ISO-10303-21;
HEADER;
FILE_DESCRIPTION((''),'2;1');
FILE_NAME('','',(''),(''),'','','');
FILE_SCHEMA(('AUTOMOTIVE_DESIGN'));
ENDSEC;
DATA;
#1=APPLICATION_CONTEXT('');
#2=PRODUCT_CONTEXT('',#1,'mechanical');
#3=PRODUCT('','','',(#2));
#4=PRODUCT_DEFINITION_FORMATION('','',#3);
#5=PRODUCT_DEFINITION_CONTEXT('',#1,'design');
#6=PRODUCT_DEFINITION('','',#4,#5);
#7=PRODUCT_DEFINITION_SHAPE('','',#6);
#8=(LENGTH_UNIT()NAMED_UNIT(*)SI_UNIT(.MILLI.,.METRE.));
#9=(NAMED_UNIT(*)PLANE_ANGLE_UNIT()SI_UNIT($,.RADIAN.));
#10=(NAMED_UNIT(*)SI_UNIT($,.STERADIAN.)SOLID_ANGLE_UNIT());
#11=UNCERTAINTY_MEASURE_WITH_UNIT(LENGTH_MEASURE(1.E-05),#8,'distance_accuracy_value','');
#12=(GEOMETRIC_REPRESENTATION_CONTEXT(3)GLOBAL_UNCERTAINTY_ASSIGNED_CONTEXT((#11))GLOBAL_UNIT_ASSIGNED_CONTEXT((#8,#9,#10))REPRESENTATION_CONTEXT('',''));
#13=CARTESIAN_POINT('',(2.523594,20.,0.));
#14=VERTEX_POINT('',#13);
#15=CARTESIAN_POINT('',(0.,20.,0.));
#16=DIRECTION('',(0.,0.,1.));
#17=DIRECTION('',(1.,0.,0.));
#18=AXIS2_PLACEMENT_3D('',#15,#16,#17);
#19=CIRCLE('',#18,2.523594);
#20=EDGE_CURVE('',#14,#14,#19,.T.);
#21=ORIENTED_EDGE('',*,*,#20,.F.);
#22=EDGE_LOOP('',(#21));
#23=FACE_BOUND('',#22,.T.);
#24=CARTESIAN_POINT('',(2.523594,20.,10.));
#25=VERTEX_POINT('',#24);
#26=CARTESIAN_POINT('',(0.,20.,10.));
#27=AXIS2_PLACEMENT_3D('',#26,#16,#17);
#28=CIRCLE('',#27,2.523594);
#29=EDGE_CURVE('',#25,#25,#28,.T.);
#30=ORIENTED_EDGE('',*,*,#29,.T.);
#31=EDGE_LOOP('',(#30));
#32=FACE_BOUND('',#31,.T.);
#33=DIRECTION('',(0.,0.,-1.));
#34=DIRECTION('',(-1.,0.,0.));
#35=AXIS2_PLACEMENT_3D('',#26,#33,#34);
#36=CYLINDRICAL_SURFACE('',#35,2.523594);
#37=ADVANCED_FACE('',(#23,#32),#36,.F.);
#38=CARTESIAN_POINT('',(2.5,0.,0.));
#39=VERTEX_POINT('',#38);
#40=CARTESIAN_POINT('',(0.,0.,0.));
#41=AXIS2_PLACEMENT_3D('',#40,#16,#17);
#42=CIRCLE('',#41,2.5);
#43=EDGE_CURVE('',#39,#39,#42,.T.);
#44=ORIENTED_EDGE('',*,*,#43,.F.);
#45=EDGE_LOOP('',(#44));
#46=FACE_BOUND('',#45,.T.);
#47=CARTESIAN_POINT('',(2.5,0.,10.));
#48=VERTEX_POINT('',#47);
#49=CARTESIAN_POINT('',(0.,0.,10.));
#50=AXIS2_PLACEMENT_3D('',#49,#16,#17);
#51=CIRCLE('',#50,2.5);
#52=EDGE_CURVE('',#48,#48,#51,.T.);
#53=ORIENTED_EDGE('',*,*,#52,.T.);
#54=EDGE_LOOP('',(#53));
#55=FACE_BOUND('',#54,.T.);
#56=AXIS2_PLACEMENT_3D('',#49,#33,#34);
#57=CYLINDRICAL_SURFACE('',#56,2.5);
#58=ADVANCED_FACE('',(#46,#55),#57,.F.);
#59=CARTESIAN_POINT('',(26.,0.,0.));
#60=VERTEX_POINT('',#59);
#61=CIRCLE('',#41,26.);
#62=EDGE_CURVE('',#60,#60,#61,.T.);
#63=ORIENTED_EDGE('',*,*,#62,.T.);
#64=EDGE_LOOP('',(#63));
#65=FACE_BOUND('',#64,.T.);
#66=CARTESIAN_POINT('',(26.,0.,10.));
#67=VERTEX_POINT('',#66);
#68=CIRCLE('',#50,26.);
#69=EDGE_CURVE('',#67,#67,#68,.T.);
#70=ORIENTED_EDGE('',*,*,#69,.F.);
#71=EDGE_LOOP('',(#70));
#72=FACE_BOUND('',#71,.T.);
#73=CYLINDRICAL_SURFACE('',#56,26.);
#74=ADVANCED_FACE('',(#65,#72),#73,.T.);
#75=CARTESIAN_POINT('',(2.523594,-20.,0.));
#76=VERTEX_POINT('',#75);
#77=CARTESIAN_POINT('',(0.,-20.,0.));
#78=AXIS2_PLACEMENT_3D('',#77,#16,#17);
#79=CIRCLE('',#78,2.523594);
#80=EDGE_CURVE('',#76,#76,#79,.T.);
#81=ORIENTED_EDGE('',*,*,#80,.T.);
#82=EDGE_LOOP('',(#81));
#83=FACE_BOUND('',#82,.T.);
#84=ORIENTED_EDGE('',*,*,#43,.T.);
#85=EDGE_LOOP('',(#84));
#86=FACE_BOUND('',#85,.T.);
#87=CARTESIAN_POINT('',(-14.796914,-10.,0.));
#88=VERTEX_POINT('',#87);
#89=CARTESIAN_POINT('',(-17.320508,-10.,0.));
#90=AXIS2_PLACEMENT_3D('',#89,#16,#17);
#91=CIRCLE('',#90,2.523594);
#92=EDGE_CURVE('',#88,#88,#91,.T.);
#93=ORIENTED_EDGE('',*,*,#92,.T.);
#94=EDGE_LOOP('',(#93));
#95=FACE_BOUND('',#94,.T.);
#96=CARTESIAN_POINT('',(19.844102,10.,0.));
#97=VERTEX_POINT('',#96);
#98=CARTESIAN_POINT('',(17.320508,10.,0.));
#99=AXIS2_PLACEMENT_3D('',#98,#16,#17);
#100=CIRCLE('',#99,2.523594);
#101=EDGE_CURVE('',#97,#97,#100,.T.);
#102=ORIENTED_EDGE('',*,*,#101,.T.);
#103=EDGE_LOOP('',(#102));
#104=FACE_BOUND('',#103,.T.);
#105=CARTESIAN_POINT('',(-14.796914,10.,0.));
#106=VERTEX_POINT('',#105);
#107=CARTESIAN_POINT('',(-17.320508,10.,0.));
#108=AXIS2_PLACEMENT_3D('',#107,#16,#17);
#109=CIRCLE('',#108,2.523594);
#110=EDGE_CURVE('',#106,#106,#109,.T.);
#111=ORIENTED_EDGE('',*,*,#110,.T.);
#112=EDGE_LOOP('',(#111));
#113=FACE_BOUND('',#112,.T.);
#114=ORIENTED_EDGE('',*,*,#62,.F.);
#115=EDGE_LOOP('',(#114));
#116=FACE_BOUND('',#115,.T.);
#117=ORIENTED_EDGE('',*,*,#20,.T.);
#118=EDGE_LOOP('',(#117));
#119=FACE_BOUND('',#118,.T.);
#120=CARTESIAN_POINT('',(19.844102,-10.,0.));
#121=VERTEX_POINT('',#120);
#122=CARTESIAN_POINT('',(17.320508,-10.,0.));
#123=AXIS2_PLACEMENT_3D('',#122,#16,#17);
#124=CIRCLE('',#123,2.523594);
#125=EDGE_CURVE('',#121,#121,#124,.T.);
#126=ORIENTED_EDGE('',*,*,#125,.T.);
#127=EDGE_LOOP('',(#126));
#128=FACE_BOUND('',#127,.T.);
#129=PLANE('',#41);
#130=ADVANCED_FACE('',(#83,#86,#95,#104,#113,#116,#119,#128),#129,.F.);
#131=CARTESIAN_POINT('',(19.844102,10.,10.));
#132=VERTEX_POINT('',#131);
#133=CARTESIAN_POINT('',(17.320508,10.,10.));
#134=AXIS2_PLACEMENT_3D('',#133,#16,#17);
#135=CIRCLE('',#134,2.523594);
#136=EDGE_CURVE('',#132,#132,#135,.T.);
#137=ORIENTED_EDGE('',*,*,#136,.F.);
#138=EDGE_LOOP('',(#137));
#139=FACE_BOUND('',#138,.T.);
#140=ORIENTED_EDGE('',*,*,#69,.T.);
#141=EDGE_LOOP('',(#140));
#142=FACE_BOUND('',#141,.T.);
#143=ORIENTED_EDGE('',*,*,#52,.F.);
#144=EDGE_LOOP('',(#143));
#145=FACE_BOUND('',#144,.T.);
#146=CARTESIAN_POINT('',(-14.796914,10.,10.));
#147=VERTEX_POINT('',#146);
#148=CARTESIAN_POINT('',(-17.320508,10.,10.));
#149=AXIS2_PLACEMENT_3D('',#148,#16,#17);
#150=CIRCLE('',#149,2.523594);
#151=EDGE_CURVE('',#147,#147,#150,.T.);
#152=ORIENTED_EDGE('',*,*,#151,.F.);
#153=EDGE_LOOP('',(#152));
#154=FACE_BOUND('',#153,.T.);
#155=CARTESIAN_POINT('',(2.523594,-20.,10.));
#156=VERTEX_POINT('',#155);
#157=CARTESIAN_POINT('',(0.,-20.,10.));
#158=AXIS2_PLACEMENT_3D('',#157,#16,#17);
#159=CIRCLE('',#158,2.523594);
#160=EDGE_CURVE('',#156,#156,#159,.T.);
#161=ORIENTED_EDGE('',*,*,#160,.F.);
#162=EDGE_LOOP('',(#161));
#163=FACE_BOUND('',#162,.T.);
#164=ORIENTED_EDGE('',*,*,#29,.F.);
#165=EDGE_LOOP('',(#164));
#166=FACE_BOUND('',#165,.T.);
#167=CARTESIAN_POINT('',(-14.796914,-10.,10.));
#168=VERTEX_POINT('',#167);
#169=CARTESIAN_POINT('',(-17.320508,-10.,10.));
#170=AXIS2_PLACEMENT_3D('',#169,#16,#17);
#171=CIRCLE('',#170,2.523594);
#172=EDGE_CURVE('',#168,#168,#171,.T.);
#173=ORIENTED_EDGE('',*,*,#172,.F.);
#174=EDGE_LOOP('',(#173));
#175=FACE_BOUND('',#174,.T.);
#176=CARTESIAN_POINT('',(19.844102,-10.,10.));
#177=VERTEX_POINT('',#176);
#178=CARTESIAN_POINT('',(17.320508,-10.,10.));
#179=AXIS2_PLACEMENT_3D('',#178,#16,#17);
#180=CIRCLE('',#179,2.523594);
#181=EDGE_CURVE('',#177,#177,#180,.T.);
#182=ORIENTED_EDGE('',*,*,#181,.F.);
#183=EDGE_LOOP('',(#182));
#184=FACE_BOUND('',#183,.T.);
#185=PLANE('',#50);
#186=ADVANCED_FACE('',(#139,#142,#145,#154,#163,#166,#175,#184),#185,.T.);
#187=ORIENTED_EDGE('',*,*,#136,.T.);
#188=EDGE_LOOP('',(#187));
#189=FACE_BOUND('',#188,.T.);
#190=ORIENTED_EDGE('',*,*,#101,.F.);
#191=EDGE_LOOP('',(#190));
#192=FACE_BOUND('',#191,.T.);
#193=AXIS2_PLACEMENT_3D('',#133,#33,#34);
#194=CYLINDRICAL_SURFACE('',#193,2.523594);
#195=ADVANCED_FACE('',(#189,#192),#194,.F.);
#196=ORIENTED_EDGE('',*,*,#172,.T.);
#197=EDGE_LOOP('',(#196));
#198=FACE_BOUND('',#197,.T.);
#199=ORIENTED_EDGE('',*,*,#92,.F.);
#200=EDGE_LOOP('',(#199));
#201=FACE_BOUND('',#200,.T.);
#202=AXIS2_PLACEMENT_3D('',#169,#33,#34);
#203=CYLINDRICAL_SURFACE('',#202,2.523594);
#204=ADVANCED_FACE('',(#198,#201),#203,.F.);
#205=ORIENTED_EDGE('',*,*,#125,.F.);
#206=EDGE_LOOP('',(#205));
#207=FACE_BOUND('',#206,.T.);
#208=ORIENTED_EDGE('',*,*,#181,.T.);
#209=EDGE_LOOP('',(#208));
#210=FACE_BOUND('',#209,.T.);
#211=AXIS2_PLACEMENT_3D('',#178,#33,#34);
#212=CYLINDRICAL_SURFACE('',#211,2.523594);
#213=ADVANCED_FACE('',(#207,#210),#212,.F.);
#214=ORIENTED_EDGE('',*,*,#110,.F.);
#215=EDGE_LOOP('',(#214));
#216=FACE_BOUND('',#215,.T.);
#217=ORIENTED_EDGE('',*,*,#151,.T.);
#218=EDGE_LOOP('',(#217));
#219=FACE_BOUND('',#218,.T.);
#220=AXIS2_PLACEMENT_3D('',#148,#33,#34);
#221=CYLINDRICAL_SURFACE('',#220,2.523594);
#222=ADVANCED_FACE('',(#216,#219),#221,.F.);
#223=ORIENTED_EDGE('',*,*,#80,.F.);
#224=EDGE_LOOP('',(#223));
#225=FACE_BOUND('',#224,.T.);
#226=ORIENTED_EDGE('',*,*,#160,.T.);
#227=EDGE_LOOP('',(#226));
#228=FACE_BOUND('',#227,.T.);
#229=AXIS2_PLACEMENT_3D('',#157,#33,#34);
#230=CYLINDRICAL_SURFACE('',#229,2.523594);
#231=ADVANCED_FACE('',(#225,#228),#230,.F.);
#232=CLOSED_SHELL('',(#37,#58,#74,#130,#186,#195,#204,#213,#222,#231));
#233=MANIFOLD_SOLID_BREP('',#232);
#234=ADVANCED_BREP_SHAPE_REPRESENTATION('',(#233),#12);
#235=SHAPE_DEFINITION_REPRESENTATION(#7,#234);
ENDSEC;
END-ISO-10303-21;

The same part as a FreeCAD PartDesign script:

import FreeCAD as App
import Part
import Sketcher
from FreeCAD import Vector
Q = App.Units.Quantity

doc = App.newDocument("Part")
body = doc.addObject("PartDesign::Body", "Body")

sketch1 = doc.addObject("Sketcher::SketchObject", "Sketch")
body.addObject(sketch1)
sketch1.AttachmentSupport = (doc.XY_Plane, [""])
sketch1.MapMode = "FlatFace"
sketch1.addGeometry([
    Part.Circle(Vector(0, 0, 0), Vector(0, 0, 1), 26),
    Part.Circle(Vector(-17.3, -10, 0), Vector(0, 0, 1), 2.5),
    Part.Circle(Vector(0, -20, 0), Vector(0, 0, 1), 2.5),
    Part.Circle(Vector(17.3, -10, 0), Vector(0, 0, 1), 2.5),
    Part.Circle(Vector(-17.3, 10, 0), Vector(0, 0, 1), 2.5),
    Part.Circle(Vector(0, 0, 0), Vector(0, 0, 1), 2.5),
    Part.Circle(Vector(17.3, 10, 0), Vector(0, 0, 1), 2.5),
    Part.Circle(Vector(0, 20, 0), Vector(0, 0, 1), 2.5),
], False)
sketch1.addConstraint([
    Sketcher.Constraint("Coincident", 0, 3, -1, 1),
    Sketcher.Constraint("Coincident", 5, 3, -1, 1),
    Sketcher.Constraint("Equal", 1, 2),
    Sketcher.Constraint("Equal", 2, 3),
    Sketcher.Constraint("Equal", 3, 4),
    Sketcher.Constraint("Equal", 4, 6),
    Sketcher.Constraint("Equal", 6, 7),
    Sketcher.Constraint("Symmetric", 3, 3, 4, 3, -1, 1),
    Sketcher.Constraint("Symmetric", 1, 3, 6, 3, -1, 1),
    Sketcher.Constraint("Symmetric", 2, 3, 7, 3, -1, 1),
    Sketcher.Constraint("Symmetric", 1, 3, 3, 3, -2),
    Sketcher.Constraint("PointOnObject", 2, 3, -2),
    Sketcher.Constraint("Diameter", 0, Q("52 mm")),
    Sketcher.Constraint("Diameter", 5, Q("5 mm")),
    Sketcher.Constraint("DistanceY", 1, 3, -1, 1, Q("10 mm")),
    Sketcher.Constraint("DistanceY", 2, 3, -1, 1, Q("20 mm")),
    Sketcher.Constraint("Diameter", 1, Q("5.047187 mm")),
    Sketcher.Constraint("DistanceX", 1, 3, -1, 1, Q("17.320508 mm")),
])
pad1 = doc.addObject("PartDesign::Pad", "Pad")
body.addObject(pad1)
pad1.Profile = sketch1
pad1.Length = 10

doc.recompute()
